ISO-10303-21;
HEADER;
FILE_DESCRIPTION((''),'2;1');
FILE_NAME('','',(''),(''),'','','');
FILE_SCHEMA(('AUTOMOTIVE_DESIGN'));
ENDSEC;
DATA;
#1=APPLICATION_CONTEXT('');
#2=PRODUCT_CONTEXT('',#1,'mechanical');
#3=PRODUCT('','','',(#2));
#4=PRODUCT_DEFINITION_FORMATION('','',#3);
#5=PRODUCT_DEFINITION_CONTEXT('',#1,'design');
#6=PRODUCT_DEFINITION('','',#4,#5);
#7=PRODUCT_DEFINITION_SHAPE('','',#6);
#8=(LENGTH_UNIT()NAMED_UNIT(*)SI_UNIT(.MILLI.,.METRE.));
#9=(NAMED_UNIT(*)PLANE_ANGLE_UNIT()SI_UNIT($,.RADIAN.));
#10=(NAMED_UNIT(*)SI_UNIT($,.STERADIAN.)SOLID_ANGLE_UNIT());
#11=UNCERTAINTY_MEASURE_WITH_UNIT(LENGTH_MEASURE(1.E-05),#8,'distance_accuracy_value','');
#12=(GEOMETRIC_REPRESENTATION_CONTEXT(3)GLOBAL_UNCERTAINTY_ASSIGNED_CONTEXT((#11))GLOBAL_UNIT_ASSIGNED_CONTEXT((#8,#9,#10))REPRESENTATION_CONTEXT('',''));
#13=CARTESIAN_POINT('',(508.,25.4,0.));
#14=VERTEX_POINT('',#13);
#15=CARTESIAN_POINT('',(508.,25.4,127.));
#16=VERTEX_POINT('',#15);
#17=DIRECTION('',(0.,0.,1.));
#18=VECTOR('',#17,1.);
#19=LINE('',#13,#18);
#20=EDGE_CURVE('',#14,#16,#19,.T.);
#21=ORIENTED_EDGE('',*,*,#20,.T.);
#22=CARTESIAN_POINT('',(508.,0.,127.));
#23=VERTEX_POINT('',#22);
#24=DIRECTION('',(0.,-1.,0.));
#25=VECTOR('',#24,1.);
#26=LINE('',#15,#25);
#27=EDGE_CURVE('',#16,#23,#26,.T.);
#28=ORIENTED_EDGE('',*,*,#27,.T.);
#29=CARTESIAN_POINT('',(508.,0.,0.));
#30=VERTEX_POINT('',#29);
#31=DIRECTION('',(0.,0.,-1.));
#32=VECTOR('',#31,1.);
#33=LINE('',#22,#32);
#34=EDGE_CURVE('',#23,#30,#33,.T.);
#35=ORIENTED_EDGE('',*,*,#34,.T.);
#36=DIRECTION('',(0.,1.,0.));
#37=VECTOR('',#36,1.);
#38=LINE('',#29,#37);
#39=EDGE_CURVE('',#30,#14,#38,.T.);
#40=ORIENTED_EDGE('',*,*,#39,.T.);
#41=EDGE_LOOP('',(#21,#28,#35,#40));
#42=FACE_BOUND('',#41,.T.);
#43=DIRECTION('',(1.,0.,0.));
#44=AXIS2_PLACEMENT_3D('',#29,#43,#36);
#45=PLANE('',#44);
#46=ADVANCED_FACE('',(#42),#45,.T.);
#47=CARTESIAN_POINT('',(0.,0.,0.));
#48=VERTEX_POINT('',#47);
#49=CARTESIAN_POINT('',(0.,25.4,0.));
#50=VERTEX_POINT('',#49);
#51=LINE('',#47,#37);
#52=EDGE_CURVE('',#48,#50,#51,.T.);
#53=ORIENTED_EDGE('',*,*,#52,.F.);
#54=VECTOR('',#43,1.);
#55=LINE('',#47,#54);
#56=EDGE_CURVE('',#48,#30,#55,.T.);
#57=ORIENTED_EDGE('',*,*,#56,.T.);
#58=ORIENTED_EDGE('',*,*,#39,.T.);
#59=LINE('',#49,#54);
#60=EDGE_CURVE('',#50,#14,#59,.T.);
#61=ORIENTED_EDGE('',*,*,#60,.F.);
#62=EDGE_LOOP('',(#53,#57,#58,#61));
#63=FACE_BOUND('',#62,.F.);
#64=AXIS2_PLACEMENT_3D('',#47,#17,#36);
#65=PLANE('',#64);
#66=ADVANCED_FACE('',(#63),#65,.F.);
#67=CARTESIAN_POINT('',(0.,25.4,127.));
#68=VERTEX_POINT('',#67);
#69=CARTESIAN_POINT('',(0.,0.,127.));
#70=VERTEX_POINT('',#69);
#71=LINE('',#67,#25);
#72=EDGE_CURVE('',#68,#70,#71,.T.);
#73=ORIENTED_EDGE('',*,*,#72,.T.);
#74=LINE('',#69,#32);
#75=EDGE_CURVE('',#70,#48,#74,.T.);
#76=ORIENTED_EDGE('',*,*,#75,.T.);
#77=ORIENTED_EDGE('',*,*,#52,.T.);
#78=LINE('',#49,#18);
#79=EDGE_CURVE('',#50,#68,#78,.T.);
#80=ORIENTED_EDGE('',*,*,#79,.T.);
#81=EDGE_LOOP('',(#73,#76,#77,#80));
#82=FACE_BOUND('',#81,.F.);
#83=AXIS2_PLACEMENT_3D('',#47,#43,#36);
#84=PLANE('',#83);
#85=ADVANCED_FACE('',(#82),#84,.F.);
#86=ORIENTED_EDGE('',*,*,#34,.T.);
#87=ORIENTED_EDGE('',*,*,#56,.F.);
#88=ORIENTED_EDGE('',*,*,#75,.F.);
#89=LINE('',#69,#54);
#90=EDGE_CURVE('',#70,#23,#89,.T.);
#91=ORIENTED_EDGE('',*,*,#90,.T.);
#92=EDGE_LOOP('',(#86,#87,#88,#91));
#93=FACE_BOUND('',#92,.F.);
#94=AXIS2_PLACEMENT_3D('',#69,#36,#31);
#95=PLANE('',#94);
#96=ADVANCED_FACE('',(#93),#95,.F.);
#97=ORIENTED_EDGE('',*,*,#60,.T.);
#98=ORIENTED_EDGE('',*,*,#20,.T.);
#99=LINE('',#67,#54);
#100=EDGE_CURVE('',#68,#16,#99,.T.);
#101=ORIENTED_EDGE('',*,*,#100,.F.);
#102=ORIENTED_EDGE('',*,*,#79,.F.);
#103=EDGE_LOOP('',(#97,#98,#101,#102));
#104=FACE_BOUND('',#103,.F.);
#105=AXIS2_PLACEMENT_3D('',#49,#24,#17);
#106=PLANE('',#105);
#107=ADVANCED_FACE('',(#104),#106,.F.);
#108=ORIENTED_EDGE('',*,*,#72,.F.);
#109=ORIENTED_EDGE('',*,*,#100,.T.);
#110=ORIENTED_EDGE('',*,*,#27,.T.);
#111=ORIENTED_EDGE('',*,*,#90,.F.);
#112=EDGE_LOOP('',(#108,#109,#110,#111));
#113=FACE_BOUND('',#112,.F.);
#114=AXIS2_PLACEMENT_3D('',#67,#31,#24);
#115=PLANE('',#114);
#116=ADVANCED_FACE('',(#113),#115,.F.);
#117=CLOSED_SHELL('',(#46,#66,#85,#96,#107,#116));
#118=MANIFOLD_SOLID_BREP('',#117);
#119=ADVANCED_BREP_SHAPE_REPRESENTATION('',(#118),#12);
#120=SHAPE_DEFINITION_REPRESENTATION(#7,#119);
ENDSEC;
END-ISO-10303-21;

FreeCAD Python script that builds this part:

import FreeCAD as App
import Part
import Sketcher
from FreeCAD import Vector
Q = App.Units.Quantity


def add_polygon(sketch, points):
    """Adds a closed chain of lines whose ends are joined by coincident constraints."""
    first, n = sketch.GeometryCount, len(points)
    for a, b in zip(points, points[1:] + points[:1]):
        sketch.addGeometry(Part.LineSegment(App.Vector(*a, 0), App.Vector(*b, 0)), False)
    for i in range(n):
        sketch.addConstraint(Sketcher.Constraint("Coincident", first + i, 2, first + (i + 1) % n, 1))

doc = App.newDocument("Part")
body = doc.addObject("PartDesign::Body", "Body")

sketch1 = body.newObject("Sketcher::SketchObject", "Sketch")
sketch1.AttachmentSupport = (doc.getObject("YZ_Plane"), [""])
sketch1.MapMode = "FlatFace"
add_polygon(sketch1, [(0, 127), (0, 0), (25, 0), (25, 127)])
sketch1.addConstraint([
    Sketcher.Constraint("Vertical", 0),
    Sketcher.Constraint("Horizontal", 1),
    Sketcher.Constraint("Vertical", 2),
    Sketcher.Constraint("Horizontal", 3),
    Sketcher.Constraint("Coincident", 0, 2, -1, 1),
    Sketcher.Constraint("DistanceX", 1, 1, 1, 2, Q("1 in")),
    Sketcher.Constraint("DistanceY", 0, 2, 0, 1, Q("5 in")),
])
pad1 = body.newObject("PartDesign::Pad", "Pad")
pad1.Profile = sketch1
pad1.Length = Q("20 in")

doc.recompute()
